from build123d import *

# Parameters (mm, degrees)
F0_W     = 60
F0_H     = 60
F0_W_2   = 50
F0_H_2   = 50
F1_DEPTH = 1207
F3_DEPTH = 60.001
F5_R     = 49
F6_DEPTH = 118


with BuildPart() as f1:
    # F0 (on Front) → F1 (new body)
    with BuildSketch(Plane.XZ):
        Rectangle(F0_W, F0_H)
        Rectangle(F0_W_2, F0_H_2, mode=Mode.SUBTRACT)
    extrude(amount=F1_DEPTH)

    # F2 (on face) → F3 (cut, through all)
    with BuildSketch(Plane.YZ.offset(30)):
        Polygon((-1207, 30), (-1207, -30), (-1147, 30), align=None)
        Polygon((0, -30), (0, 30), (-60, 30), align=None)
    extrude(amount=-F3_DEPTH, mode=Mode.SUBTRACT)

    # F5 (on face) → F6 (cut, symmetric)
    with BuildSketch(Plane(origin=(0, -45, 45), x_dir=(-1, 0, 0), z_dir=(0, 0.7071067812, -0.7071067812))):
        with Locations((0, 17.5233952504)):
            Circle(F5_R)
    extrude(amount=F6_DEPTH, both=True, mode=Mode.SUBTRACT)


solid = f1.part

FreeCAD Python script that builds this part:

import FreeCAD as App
import Part
import Sketcher
Q = App.Units.Quantity


def add_polygon(sketch, points):
    """Adds a closed chain of lines whose ends are joined by coincident constraints."""
    first, n = sketch.GeometryCount, len(points)
    for a, b in zip(points, points[1:] + points[:1]):
        sketch.addGeometry(Part.LineSegment(App.Vector(*a, 0), App.Vector(*b, 0)), False)
    for i in range(n):
        sketch.addConstraint(Sketcher.Constraint("Coincident", first + i, 2, first + (i + 1) % n, 1))

doc = App.newDocument("Part")
body = doc.addObject("PartDesign::Body", "Body")

# Sketch on XZ plane
sketch1 = body.newObject("Sketcher::SketchObject", "Sketch")
sketch1.AttachmentSupport = (doc.getObject("XZ_Plane"), [""])
sketch1.MapMode = "FlatFace"
add_polygon(sketch1, [(-30, 30), (-30, -30), (30, -30), (30, 30)])  # lines 0-3
add_polygon(sketch1, [(25, -25), (-25, -25), (-25, 25), (25, 25)])  # lines 4-7
sketch1.addConstraint(Sketcher.Constraint("Vertical", 0))
sketch1.addConstraint(Sketcher.Constraint("Horizontal", 1))
sketch1.addConstraint(Sketcher.Constraint("Vertical", 2))
sketch1.addConstraint(Sketcher.Constraint("Horizontal", 3))
sketch1.addConstraint(Sketcher.Constraint("Horizontal", 4))
sketch1.addConstraint(Sketcher.Constraint("Vertical", 5))
sketch1.addConstraint(Sketcher.Constraint("Horizontal", 6))
sketch1.addConstraint(Sketcher.Constraint("Vertical", 7))
sketch1.addConstraint(Sketcher.Constraint("Symmetric", 0, 2, 2, 2, -1, 1))
sketch1.addConstraint(Sketcher.Constraint("Symmetric", 4, 2, 6, 2, -1, 1))
sketch1.addConstraint(Sketcher.Constraint("Equal", 3, 0))
sketch1.addConstraint(Sketcher.Constraint("Equal", 6, 5))
sketch1.addConstraint(Sketcher.Constraint("DistanceX", 1, 1, 1, 2, Q("60 mm")))
sketch1.addConstraint(Sketcher.Constraint("DistanceX", 4, 2, 4, 1, Q("50 mm")))
pad1 = body.newObject("PartDesign::Pad", "Pad")
pad1.Profile = sketch1
pad1.Length = 1207

# Sketch on YZ plane
sketch2 = body.newObject("Sketcher::SketchObject", "Sketch001")
sketch2.AttachmentSupport = (doc.getObject("YZ_Plane"), [""])
sketch2.MapMode = "FlatFace"
sketch2.AttachmentOffset = App.Placement(App.Vector(0, 0, 30), App.Rotation())
add_polygon(sketch2, [(-1207, 30), (-1207, -30), (-1147, 30)])  # lines 0-2
add_polygon(sketch2, [(0, -30), (0, 30), (-60, 30)])  # lines 3-5
sketch2.addConstraint(Sketcher.Constraint("Vertical", 0))
sketch2.addConstraint(Sketcher.Constraint("Horizontal", 2))
sketch2.addConstraint(Sketcher.Constraint("Vertical", 3))
sketch2.addConstraint(Sketcher.Constraint("Horizontal", 4))
sketch2.addConstraint(Sketcher.Constraint("Symmetric", 3, 2, 5, 2, -1, 1))
sketch2.addConstraint(Sketcher.Constraint("Perpendicular", 1, 5))
sketch2.addConstraint(Sketcher.Constraint("Horizontal", 2, 2, 3, 2))
sketch2.addConstraint(Sketcher.Constraint("Horizontal", 0, 2, 5, 2))
sketch2.addConstraint(Sketcher.Constraint("Equal", 2, 4))
sketch2.addConstraint(Sketcher.Constraint("DistanceX", 2, 2, 2, 1, Q("60 mm")))
sketch2.addConstraint(Sketcher.Constraint("DistanceX", 0, 2, -1, 1, Q("1207 mm")))
pocket1 = body.newObject("PartDesign::Pocket", "Pocket")
pocket1.Profile = sketch2
pocket1.Type = "ThroughAll"

# Sketch on an angled plane
sketch3 = body.newObject("Sketcher::SketchObject", "Sketch002")
sketch3.Placement = App.Placement(App.Vector(0, -45, 45), App.Rotation(App.Vector(-1, 0, 0), App.Vector(0, 0.707106781, 0.707106781), App.Vector(0, 0.707106781, -0.707106781), "ZXY"))
sketch3.addGeometry(Part.Circle(App.Vector(0, 17.523395, 0), App.Vector(0, 0, 1), 49), False)
sketch3.addConstraint(Sketcher.Constraint("PointOnObject", 0, 3, -2))
sketch3.addConstraint(Sketcher.Constraint("Diameter", 0, Q("98 mm")))
sketch3.addConstraint(Sketcher.Constraint("DistanceY", -1, 1, 0, 3, Q("17.523395 mm")))
pocket2 = body.newObject("PartDesign::Pocket", "Pocket001")
pocket2.Profile = sketch3
pocket2.Length = 236
pocket2.Midplane = True

doc.recompute()
